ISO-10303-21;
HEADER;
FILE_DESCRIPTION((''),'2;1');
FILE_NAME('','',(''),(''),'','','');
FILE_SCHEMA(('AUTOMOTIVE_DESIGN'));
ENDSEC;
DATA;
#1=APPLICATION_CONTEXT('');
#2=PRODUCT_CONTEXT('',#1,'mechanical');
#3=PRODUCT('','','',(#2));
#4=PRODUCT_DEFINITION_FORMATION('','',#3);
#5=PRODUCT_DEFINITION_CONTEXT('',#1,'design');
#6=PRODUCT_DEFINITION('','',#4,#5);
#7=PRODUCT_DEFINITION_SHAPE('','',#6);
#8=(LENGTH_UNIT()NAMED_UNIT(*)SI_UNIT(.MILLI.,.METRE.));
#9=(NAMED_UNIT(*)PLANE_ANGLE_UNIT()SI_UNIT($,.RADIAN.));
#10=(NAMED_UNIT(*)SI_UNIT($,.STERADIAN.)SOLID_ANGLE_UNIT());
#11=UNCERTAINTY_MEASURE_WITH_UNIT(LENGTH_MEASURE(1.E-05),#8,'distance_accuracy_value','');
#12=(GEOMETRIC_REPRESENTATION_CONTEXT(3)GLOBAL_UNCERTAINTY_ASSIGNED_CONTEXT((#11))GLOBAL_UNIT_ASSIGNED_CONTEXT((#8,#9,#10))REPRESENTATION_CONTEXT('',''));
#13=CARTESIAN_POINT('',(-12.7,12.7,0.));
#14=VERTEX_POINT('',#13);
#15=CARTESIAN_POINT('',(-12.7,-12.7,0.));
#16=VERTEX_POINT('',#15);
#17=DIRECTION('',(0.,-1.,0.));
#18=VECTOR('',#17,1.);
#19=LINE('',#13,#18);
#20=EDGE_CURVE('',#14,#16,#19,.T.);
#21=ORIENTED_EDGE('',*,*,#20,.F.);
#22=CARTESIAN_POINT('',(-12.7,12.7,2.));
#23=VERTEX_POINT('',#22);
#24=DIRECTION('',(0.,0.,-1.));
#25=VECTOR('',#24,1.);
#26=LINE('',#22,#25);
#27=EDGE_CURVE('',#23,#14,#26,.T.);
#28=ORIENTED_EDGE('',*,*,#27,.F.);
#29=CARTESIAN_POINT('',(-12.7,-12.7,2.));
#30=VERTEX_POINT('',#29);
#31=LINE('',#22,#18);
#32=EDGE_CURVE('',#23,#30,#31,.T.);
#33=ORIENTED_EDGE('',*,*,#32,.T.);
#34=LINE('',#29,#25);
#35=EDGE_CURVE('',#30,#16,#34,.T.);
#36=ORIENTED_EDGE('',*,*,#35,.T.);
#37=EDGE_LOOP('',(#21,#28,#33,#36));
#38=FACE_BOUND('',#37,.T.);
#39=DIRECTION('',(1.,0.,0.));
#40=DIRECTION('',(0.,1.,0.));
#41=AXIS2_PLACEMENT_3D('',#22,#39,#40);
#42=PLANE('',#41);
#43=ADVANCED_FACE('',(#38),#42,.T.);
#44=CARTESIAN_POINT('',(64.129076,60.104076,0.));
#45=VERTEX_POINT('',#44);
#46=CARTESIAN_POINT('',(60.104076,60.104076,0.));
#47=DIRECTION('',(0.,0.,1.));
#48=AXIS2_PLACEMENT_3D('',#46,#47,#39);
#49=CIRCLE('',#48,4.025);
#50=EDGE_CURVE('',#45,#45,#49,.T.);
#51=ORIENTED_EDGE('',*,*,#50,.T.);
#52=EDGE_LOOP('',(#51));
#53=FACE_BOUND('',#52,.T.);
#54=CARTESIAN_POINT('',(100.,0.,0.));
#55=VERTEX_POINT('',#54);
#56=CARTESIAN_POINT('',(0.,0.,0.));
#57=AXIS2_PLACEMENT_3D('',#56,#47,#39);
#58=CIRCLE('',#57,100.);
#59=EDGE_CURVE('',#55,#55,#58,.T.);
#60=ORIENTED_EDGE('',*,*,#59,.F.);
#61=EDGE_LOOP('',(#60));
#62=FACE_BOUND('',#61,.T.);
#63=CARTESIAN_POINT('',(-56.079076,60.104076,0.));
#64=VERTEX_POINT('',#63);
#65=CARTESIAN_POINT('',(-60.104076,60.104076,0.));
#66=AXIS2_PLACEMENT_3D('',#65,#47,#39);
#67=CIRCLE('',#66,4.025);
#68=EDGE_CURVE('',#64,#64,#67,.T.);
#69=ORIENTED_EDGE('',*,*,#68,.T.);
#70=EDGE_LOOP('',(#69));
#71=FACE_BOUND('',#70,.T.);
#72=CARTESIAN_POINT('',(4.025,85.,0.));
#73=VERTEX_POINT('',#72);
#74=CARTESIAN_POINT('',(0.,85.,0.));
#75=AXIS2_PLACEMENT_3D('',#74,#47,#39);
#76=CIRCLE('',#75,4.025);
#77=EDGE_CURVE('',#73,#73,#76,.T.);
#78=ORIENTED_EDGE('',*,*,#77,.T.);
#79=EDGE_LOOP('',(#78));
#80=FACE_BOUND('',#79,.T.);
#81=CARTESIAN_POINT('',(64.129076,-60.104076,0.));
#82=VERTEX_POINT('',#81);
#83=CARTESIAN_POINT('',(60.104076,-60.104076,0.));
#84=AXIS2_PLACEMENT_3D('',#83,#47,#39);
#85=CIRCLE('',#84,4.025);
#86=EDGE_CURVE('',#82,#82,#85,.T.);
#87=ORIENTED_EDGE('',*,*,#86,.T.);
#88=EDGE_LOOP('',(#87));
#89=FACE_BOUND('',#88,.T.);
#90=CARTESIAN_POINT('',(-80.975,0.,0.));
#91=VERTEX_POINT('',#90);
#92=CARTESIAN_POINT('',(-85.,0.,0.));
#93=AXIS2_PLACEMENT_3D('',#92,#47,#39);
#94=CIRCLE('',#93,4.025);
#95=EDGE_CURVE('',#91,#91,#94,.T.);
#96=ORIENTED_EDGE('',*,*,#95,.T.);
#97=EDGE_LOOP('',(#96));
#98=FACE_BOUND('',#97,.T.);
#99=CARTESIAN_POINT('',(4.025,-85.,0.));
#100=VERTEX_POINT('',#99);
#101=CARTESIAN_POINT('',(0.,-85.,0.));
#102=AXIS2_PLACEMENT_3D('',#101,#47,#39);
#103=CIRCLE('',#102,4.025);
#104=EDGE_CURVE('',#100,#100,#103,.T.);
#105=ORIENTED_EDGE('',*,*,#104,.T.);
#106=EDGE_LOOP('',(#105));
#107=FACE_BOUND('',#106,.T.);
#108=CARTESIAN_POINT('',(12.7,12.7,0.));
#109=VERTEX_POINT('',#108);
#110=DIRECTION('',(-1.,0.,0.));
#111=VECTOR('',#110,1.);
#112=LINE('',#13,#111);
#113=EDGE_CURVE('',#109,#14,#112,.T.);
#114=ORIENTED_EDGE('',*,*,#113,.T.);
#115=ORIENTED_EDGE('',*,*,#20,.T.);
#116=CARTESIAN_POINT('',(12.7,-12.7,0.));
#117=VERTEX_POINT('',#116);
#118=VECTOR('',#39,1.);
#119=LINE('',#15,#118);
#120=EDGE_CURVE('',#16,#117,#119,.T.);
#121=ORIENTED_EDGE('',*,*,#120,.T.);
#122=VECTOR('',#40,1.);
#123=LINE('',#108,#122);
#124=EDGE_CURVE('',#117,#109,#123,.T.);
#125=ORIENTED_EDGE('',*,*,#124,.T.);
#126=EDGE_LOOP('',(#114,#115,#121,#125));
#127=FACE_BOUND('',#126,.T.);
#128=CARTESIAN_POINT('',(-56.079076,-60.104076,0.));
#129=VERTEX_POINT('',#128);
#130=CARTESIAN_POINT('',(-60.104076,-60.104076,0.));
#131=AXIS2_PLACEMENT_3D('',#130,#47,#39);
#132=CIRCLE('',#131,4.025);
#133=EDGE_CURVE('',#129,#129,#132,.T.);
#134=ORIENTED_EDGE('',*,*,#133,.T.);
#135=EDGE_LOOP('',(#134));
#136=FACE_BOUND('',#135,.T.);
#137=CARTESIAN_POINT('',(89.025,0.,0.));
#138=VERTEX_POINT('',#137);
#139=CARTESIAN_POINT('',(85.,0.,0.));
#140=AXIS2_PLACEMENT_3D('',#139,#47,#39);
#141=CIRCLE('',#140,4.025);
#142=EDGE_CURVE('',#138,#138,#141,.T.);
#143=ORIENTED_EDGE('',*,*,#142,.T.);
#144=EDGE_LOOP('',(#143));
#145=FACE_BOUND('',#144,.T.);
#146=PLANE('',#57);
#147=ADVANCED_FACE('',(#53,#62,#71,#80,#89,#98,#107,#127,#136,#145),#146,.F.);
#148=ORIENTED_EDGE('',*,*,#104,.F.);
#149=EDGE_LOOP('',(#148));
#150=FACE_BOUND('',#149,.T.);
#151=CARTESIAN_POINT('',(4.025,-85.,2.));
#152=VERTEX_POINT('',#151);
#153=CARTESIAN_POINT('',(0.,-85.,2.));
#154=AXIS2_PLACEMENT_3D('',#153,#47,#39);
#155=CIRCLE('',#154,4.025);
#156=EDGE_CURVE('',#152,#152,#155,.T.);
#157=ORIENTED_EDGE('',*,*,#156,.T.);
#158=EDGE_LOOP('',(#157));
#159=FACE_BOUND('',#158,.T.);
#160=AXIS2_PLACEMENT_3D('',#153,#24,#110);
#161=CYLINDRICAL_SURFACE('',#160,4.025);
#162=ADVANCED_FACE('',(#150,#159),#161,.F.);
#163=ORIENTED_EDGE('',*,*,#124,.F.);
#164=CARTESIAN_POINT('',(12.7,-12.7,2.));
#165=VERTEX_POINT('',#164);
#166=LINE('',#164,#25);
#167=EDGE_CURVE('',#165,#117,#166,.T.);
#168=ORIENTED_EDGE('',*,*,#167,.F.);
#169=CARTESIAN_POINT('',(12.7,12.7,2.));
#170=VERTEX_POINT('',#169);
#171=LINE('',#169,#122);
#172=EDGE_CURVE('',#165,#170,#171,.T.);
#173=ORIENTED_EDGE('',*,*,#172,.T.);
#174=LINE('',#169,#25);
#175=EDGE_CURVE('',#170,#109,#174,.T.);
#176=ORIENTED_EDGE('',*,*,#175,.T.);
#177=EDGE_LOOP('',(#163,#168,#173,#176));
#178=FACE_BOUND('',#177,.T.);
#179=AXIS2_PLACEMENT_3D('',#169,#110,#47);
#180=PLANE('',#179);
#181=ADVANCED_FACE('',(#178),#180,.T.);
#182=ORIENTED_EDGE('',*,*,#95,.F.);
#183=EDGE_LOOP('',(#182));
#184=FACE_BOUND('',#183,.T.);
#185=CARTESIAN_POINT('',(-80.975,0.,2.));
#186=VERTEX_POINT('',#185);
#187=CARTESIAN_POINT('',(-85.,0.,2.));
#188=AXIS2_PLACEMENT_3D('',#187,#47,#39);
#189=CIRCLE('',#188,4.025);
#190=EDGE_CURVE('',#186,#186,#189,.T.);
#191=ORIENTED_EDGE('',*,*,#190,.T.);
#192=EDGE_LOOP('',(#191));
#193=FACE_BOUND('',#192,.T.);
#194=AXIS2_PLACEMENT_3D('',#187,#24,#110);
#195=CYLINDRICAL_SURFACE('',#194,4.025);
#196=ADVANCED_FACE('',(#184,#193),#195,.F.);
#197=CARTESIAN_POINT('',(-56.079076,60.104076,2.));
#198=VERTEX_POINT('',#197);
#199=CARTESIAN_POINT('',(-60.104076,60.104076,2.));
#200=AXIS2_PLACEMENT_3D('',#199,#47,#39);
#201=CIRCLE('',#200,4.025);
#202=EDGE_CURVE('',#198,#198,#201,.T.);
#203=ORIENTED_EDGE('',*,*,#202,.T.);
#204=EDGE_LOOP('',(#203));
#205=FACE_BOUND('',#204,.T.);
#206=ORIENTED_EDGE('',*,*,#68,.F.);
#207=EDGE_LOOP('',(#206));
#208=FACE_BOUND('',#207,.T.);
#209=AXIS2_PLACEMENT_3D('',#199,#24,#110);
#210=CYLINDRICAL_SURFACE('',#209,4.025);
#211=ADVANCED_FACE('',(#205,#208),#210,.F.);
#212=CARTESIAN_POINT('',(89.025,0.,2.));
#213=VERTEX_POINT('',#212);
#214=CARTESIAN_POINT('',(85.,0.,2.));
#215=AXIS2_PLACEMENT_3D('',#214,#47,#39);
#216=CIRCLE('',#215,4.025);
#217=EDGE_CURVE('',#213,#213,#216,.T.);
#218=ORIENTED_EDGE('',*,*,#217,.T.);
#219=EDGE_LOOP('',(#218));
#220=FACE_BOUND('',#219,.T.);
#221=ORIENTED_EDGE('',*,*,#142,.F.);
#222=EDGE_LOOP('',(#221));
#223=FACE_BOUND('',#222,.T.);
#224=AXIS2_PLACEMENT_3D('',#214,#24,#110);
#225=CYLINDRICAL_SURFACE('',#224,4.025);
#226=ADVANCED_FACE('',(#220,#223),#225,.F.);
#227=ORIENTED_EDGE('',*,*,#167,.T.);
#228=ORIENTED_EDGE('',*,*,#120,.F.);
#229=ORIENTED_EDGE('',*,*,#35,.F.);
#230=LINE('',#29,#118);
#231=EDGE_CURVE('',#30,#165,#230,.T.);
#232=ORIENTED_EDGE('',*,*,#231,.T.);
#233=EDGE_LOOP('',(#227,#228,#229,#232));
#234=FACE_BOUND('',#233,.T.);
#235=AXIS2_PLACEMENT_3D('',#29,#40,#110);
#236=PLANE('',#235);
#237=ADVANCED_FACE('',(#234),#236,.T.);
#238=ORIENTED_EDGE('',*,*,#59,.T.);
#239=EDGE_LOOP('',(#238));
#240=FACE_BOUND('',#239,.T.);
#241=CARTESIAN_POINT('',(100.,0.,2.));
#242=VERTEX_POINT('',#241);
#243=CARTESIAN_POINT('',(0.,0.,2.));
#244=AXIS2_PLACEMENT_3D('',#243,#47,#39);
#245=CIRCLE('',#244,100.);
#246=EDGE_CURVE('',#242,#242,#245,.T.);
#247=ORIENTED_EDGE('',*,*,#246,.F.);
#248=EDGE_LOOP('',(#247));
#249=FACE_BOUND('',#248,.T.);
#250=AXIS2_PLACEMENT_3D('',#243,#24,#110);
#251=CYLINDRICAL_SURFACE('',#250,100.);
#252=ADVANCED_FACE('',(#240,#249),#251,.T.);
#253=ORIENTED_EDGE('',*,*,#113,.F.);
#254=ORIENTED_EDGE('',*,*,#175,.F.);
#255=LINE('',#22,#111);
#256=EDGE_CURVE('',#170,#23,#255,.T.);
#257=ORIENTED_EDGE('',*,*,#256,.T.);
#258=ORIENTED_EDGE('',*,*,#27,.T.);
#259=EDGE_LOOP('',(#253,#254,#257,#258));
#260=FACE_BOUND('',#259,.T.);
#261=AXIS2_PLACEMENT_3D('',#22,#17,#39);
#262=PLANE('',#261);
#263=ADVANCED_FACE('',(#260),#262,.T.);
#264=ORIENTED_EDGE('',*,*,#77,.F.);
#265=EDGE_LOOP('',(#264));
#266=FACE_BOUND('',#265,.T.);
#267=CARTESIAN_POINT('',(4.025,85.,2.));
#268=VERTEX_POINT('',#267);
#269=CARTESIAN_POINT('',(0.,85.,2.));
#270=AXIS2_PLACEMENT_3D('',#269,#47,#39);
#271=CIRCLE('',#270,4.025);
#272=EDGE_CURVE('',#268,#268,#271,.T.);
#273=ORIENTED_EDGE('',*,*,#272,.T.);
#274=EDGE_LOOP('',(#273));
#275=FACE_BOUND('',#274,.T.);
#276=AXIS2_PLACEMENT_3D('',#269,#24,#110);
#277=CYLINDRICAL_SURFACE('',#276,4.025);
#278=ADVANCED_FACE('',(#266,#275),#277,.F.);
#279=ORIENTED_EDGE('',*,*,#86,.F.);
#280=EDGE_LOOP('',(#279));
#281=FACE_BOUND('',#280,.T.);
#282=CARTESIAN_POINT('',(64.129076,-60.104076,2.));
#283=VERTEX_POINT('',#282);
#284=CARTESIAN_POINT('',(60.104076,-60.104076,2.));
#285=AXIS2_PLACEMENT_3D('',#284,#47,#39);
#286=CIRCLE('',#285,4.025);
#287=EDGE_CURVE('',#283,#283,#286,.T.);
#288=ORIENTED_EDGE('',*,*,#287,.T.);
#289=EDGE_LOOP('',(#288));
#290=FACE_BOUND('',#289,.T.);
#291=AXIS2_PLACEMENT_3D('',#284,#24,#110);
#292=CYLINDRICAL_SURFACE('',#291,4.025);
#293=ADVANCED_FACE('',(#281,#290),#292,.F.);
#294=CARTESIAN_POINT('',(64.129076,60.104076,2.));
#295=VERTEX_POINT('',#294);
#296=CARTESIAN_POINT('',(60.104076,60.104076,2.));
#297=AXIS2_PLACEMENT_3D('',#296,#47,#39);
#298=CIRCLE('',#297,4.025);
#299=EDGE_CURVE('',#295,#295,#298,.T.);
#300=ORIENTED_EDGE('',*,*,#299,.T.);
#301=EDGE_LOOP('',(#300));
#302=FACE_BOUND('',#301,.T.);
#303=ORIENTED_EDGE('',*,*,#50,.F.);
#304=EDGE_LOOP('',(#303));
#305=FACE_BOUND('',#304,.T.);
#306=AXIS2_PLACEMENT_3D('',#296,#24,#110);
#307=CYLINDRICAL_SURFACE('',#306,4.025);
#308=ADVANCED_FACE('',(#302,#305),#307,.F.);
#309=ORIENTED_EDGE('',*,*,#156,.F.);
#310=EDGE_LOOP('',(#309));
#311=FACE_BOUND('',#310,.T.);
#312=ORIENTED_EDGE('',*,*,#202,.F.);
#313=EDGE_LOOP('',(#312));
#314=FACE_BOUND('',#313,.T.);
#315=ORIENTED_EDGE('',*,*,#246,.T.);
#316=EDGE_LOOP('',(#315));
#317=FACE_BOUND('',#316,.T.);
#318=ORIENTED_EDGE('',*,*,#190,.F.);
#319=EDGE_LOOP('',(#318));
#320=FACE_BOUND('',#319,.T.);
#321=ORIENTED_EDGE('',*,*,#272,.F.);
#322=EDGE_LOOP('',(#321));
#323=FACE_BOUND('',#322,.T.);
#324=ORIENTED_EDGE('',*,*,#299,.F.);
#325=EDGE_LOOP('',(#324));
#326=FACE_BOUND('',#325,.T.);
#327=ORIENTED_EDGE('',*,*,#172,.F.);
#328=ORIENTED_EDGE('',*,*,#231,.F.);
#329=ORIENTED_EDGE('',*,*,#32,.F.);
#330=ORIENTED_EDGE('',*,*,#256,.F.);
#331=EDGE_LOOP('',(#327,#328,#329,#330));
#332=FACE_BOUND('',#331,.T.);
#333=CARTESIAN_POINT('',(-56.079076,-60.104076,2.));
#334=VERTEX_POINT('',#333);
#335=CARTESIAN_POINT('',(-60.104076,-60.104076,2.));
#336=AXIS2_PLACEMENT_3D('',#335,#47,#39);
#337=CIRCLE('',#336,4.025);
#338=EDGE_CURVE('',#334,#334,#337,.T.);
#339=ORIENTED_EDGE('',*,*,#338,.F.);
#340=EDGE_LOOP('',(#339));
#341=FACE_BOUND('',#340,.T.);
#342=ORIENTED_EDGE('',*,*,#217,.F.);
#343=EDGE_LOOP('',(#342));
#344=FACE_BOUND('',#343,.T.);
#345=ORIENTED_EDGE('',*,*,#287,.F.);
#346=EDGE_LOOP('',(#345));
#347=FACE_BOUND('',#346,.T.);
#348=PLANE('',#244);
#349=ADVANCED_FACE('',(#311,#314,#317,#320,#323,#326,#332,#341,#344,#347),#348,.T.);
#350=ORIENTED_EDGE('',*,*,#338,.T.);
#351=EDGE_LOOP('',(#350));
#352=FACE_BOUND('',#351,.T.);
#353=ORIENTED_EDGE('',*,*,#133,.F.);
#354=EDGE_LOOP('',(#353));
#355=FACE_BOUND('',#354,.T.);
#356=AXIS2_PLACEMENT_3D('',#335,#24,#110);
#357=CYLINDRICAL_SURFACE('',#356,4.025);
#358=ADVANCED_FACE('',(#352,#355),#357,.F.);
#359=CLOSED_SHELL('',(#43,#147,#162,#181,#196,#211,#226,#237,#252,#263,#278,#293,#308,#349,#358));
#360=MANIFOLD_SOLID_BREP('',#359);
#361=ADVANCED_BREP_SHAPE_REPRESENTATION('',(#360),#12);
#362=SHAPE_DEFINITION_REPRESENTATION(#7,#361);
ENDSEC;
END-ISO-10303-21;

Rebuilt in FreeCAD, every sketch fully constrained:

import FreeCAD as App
import Part
import Sketcher
from FreeCAD import Vector
Q = App.Units.Quantity


def add_polygon(sketch, points):
    """Adds a closed chain of lines whose ends are joined by coincident constraints."""
    first, n = sketch.GeometryCount, len(points)
    for a, b in zip(points, points[1:] + points[:1]):
        sketch.addGeometry(Part.LineSegment(App.Vector(*a, 0), App.Vector(*b, 0)), False)
    for i in range(n):
        sketch.addConstraint(Sketcher.Constraint("Coincident", first + i, 2, first + (i + 1) % n, 1))

doc = App.newDocument("Part")
body = doc.addObject("PartDesign::Body", "Body")

# Sketch on XY plane
sketch1 = doc.addObject("Sketcher::SketchObject", "Sketch")
body.addObject(sketch1)
sketch1.AttachmentSupport = (doc.XY_Plane, [""])
sketch1.MapMode = "FlatFace"
sketch1.addGeometry(Part.Circle(Vector(0, 0, 0), Vector(0, 0, 1), 100), False)  # 0
sketch1.addGeometry(Part.Circle(Vector(-60.104076, -60.104076, 0), Vector(0, 0, 1), 4.025), False)  # 1
sketch1.addGeometry(Part.Circle(Vector(0, -85, 0), Vector(0, 0, 1), 4.025), False)  # 2
sketch1.addGeometry(Part.Circle(Vector(60.104076, -60.104076, 0), Vector(0, 0, 1), 4.025), False)  # 3
sketch1.addGeometry(Part.Circle(Vector(-85, 0, 0), Vector(0, 0, 1), 4.025), False)  # 4
sketch1.addGeometry(Part.Circle(Vector(-60.104076, 60.104076, 0), Vector(0, 0, 1), 4.025), False)  # 5
add_polygon(sketch1, [(12.7, -12.7), (-12.7, -12.7), (-12.7, 12.7), (12.7, 12.7)])  # lines 6-9
sketch1.addGeometry(Part.Circle(Vector(85, 0, 0), Vector(0, 0, 1), 4.025), False)  # 10
sketch1.addGeometry(Part.Circle(Vector(0, 85, 0), Vector(0, 0, 1), 4.025), False)  # 11
sketch1.addGeometry(Part.Circle(Vector(60.104076, 60.104076, 0), Vector(0, 0, 1), 4.025), False)  # 12
sketch1.addConstraint([
    Sketcher.Constraint("Horizontal", 6),
    Sketcher.Constraint("Vertical", 7),
    Sketcher.Constraint("Horizontal", 8),
    Sketcher.Constraint("Vertical", 9),
    Sketcher.Constraint("Coincident", 0, 3, -1, 1),
    Sketcher.Constraint("Equal", 1, 2),
    Sketcher.Constraint("Equal", 2, 3),
    Sketcher.Constraint("Equal", 3, 4),
    Sketcher.Constraint("Equal", 4, 5),
    Sketcher.Constraint("Equal", 5, 10),
    Sketcher.Constraint("Equal", 10, 11),
    Sketcher.Constraint("Equal", 11, 12),
    Sketcher.Constraint("Symmetric", 3, 3, 5, 3, -1, 1),
    Sketcher.Constraint("Symmetric", 4, 3, 10, 3, -1, 1),
    Sketcher.Constraint("Symmetric", 2, 3, 11, 3, -1, 1),
    Sketcher.Constraint("Symmetric", 1, 3, 12, 3, -1, 1),
    Sketcher.Constraint("Symmetric", 6, 2, 8, 2, -1, 1),
    Sketcher.Constraint("Symmetric", 1, 3, 3, 3, -2),
    Sketcher.Constraint("PointOnObject", 2, 3, -2),
    Sketcher.Constraint("PointOnObject", 4, 3, -1),
    Sketcher.Constraint("Equal", 8, 7),
    Sketcher.Constraint("Diameter", 0, Q("200 mm")),
    Sketcher.Constraint("Diameter", 1, Q("8.05 mm")),
    Sketcher.Constraint("DistanceX", 6, 2, 6, 1, Q("25.4 mm")),
    Sketcher.Constraint("DistanceY", 2, 3, -1, 1, Q("85 mm")),
    Sketcher.Constraint("DistanceX", 4, 3, -1, 1, Q("85 mm")),
    Sketcher.Constraint("DistanceX", 1, 3, -1, 1, Q("60.104076 mm")),
    Sketcher.Constraint("DistanceY", 1, 3, -1, 1, Q("60.104076 mm")),
])
pad1 = doc.addObject("PartDesign::Pad", "Pad")
body.addObject(pad1)
pad1.Profile = sketch1
pad1.Length = 2

doc.recompute()
